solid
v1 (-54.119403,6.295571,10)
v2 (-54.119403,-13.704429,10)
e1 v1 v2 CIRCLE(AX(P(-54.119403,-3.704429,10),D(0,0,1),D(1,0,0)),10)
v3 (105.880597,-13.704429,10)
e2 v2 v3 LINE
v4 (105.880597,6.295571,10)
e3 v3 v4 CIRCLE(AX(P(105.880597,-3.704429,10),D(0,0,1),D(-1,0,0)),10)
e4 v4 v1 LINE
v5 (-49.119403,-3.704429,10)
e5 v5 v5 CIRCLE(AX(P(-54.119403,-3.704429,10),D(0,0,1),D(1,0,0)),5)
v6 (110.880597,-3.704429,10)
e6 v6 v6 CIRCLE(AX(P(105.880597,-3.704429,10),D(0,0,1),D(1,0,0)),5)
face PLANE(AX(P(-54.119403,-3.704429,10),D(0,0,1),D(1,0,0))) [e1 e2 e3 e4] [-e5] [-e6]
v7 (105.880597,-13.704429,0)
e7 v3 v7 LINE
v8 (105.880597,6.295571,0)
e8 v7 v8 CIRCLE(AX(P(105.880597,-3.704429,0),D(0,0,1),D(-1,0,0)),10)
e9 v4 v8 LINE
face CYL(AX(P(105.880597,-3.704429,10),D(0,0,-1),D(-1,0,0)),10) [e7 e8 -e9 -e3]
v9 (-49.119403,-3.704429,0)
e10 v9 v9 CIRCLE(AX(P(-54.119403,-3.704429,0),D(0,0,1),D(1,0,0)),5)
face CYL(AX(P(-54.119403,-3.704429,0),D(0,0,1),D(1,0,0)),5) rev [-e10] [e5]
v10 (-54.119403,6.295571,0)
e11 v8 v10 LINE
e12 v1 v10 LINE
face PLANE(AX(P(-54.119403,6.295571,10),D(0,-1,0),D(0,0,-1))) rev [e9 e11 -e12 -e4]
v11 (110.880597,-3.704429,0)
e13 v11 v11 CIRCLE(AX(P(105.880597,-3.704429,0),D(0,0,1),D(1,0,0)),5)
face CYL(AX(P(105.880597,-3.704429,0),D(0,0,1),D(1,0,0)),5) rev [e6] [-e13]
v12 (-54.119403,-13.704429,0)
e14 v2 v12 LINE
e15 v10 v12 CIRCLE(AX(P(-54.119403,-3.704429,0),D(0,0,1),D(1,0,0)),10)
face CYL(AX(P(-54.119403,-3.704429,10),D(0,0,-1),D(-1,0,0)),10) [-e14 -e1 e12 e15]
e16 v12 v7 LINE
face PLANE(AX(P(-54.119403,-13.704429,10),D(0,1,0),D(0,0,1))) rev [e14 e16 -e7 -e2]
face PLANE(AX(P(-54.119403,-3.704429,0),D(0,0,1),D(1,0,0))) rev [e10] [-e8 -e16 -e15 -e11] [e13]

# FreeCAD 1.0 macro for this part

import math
import FreeCAD as App
import Part
import Sketcher
from FreeCAD import Vector

doc = App.newDocument("Part")
body = doc.addObject("PartDesign::Body", "Body")

sketch1 = body.newObject("Sketcher::SketchObject", "Sketch")
sketch1.AttachmentSupport = (doc.getObject("XY_Plane"), [""])
sketch1.MapMode = "FlatFace"
sketch1.addGeometry([
    Part.LineSegment(Vector(106, 6, 0), Vector(-54, 6, 0)),
    Part.ArcOfCircle(Part.Circle(Vector(-54, -4, 0), Vector(0, 0, 1), 10), math.radians(90), math.radians(270)),
    Part.LineSegment(Vector(-54, -14, 0), Vector(106, -14, 0)),
    Part.ArcOfCircle(Part.Circle(Vector(106, -4, 0), Vector(0, 0, 1), 10), math.radians(-90), math.radians(90)),
], False)
sketch1.addConstraint([
    Sketcher.Constraint("Tangent", 0, 2, 1, 1),
    Sketcher.Constraint("Tangent", 1, 2, 2, 1),
    Sketcher.Constraint("Tangent", 2, 2, 3, 1),
    Sketcher.Constraint("Tangent", 3, 2, 0, 1),
    Sketcher.Constraint("Horizontal", 0),
    Sketcher.Constraint("Horizontal", 2),
    Sketcher.Constraint("Radius", 1, 10.0),
    Sketcher.Constraint("DistanceX", 0, 2, 0, 1, 160.0),
    Sketcher.Constraint("DistanceY", 1, 3, -1, 1, 3.704429),
    Sketcher.Constraint("DistanceX", 1, 3, -1, 1, 54.119403),
])
pad1 = body.newObject("PartDesign::Pad", "Pad")
pad1.Profile = sketch1
pad1.Length = 10

sketch2 = body.newObject("Sketcher::SketchObject", "Sketch001")
sketch2.AttachmentSupport = (doc.getObject("XY_Plane"), [""])
sketch2.MapMode = "FlatFace"
sketch2.AttachmentOffset = App.Placement(Vector(0, 0, 10), App.Rotation())
sketch2.addGeometry([
    Part.Circle(Vector(106, -4, 0), Vector(0, 0, 1), 5),
    Part.Circle(Vector(-54, -4, 0), Vector(0, 0, 1), 5),
], False)
sketch2.addConstraint([
    Sketcher.Constraint("Equal", 0, 1),
    Sketcher.Constraint("Horizontal", 0, 3, 1, 3),
    Sketcher.Constraint("Diameter", 0, 10.0),
    Sketcher.Constraint("DistanceX", 1, 3, 0, 3, 160.0),
    Sketcher.Constraint("DistanceY", 0, 3, -1, 1, 3.704429),
    Sketcher.Constraint("DistanceX", -1, 1, 0, 3, 105.880597),
])
pocket1 = body.newObject("PartDesign::Pocket", "Pocket")
pocket1.Profile = sketch2
pocket1.Length = 10

doc.recompute()
